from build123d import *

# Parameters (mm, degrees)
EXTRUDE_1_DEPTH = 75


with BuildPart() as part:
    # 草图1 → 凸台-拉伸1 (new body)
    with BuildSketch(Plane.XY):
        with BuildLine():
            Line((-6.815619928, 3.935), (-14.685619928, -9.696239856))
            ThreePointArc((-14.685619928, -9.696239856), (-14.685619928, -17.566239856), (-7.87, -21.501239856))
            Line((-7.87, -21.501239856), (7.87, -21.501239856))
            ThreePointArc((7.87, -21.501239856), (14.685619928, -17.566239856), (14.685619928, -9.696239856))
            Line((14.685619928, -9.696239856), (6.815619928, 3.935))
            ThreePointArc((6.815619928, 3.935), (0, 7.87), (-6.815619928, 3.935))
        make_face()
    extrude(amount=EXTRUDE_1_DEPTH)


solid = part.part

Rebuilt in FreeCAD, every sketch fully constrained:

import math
import FreeCAD as App
import Part
import Sketcher
Q = App.Units.Quantity

doc = App.newDocument("Part")
body = doc.addObject("PartDesign::Body", "Body")

sketch1 = body.newObject("Sketcher::SketchObject", "Sketch")
sketch1.AttachmentSupport = (doc.getObject("XY_Plane"), [""])
sketch1.MapMode = "FlatFace"
sketch1.addGeometry([
    Part.LineSegment(App.Vector(-7, 4, 0), App.Vector(-15, -10, 0)),
    Part.ArcOfCircle(Part.Circle(App.Vector(-8, -14, 0), App.Vector(0, 0, 1), 8), math.radians(150), math.radians(270)),
    Part.LineSegment(App.Vector(-8, -22, 0), App.Vector(8, -22, 0)),
    Part.ArcOfCircle(Part.Circle(App.Vector(8, -14, 0), App.Vector(0, 0, 1), 8), math.radians(-90), math.radians(30)),
    Part.LineSegment(App.Vector(15, -10, 0), App.Vector(7, 4, 0)),
    Part.ArcOfCircle(Part.Circle(App.Vector(0, 0, 0), App.Vector(0, 0, 1), 8), math.radians(30), math.radians(150)),
], False)
sketch1.addConstraint([
    Sketcher.Constraint("Tangent", 0, 2, 1, 1),
    Sketcher.Constraint("Tangent", 1, 2, 2, 1),
    Sketcher.Constraint("Tangent", 2, 2, 3, 1),
    Sketcher.Constraint("Tangent", 3, 2, 4, 1),
    Sketcher.Constraint("Tangent", 4, 2, 5, 1),
    Sketcher.Constraint("Tangent", 5, 2, 0, 1),
    Sketcher.Constraint("Horizontal", 2),
    Sketcher.Constraint("Coincident", 5, 3, -1, 1),
    Sketcher.Constraint("Equal", 1, 3),
    Sketcher.Constraint("Equal", 3, 5),
    Sketcher.Constraint("Horizontal", 0, 2, 3, 2),
    Sketcher.Constraint("Angle", 0, Q("-120 deg")),
    Sketcher.Constraint("Radius", 1, 7.87),
    Sketcher.Constraint("DistanceX", 2, 1, 2, 2, 15.74),
])
pad1 = body.newObject("PartDesign::Pad", "Pad")
pad1.Profile = sketch1
pad1.Length = 75

doc.recompute()
